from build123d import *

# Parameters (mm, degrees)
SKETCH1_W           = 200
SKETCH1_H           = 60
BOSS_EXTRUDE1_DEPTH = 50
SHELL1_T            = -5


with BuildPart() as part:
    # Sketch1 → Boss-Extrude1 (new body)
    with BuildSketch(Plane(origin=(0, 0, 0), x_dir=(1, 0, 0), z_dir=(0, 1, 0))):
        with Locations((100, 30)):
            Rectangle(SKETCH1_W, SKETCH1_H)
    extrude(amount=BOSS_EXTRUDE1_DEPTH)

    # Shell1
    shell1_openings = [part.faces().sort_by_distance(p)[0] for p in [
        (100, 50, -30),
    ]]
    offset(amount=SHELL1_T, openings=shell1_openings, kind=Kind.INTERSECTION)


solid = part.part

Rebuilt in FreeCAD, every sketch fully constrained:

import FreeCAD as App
import Part
import Sketcher


def faces_at(feature, points):
    """Names of the faces that lie closest to the given points."""
    faces = feature.Shape.Faces
    near = lambda p: min(range(len(faces)), key=lambda i: faces[i].distToShape(Part.Vertex(*p))[0])
    return sorted({f"Face{near(p) + 1}" for p in points})

doc = App.newDocument("Part")
body = doc.addObject("PartDesign::Body", "Body")

# Sketch on XZ plane
sketch1 = doc.addObject("Sketcher::SketchObject", "Sketch")
body.addObject(sketch1)
sketch1.AttachmentSupport = (doc.XZ_Plane, [""])
sketch1.MapMode = "FlatFace"
sketch1.addGeometry([
    Part.LineSegment(App.Vector(0, -60, 0), App.Vector(0, 0, 0)),
    Part.LineSegment(App.Vector(0, 0, 0), App.Vector(200, 0, 0)),
    Part.LineSegment(App.Vector(200, 0, 0), App.Vector(200, -60, 0)),
    Part.LineSegment(App.Vector(200, -60, 0), App.Vector(0, -60, 0)),
], False)
sketch1.addConstraint([
    Sketcher.Constraint("Coincident", 0, 2, 1, 1),
    Sketcher.Constraint("Coincident", 1, 2, 2, 1),
    Sketcher.Constraint("Coincident", 2, 2, 3, 1),
    Sketcher.Constraint("Coincident", 3, 2, 0, 1),
    Sketcher.Constraint("Vertical", 0),
    Sketcher.Constraint("Horizontal", 1),
    Sketcher.Constraint("Vertical", 2),
    Sketcher.Constraint("Horizontal", 3),
    Sketcher.Constraint("Coincident", 0, 2, -1, 1),
    Sketcher.Constraint("DistanceX", 1, 1, 1, 2, 200.0),
    Sketcher.Constraint("DistanceY", 0, 1, 0, 2, 60.0),
])
pad1 = doc.addObject("PartDesign::Pad", "Pad")
body.addObject(pad1)
pad1.Profile = sketch1
pad1.Length = 50
pad1.Reversed = True
doc.recompute()

thickness = doc.addObject("PartDesign::Thickness", "Thickness")
body.addObject(thickness)
thickness.Base = (pad1, faces_at(pad1, [(100, 50, -30)]))
thickness.Value = 5
thickness.Reversed = True
thickness.Join = "Intersection"

doc.recompute()
